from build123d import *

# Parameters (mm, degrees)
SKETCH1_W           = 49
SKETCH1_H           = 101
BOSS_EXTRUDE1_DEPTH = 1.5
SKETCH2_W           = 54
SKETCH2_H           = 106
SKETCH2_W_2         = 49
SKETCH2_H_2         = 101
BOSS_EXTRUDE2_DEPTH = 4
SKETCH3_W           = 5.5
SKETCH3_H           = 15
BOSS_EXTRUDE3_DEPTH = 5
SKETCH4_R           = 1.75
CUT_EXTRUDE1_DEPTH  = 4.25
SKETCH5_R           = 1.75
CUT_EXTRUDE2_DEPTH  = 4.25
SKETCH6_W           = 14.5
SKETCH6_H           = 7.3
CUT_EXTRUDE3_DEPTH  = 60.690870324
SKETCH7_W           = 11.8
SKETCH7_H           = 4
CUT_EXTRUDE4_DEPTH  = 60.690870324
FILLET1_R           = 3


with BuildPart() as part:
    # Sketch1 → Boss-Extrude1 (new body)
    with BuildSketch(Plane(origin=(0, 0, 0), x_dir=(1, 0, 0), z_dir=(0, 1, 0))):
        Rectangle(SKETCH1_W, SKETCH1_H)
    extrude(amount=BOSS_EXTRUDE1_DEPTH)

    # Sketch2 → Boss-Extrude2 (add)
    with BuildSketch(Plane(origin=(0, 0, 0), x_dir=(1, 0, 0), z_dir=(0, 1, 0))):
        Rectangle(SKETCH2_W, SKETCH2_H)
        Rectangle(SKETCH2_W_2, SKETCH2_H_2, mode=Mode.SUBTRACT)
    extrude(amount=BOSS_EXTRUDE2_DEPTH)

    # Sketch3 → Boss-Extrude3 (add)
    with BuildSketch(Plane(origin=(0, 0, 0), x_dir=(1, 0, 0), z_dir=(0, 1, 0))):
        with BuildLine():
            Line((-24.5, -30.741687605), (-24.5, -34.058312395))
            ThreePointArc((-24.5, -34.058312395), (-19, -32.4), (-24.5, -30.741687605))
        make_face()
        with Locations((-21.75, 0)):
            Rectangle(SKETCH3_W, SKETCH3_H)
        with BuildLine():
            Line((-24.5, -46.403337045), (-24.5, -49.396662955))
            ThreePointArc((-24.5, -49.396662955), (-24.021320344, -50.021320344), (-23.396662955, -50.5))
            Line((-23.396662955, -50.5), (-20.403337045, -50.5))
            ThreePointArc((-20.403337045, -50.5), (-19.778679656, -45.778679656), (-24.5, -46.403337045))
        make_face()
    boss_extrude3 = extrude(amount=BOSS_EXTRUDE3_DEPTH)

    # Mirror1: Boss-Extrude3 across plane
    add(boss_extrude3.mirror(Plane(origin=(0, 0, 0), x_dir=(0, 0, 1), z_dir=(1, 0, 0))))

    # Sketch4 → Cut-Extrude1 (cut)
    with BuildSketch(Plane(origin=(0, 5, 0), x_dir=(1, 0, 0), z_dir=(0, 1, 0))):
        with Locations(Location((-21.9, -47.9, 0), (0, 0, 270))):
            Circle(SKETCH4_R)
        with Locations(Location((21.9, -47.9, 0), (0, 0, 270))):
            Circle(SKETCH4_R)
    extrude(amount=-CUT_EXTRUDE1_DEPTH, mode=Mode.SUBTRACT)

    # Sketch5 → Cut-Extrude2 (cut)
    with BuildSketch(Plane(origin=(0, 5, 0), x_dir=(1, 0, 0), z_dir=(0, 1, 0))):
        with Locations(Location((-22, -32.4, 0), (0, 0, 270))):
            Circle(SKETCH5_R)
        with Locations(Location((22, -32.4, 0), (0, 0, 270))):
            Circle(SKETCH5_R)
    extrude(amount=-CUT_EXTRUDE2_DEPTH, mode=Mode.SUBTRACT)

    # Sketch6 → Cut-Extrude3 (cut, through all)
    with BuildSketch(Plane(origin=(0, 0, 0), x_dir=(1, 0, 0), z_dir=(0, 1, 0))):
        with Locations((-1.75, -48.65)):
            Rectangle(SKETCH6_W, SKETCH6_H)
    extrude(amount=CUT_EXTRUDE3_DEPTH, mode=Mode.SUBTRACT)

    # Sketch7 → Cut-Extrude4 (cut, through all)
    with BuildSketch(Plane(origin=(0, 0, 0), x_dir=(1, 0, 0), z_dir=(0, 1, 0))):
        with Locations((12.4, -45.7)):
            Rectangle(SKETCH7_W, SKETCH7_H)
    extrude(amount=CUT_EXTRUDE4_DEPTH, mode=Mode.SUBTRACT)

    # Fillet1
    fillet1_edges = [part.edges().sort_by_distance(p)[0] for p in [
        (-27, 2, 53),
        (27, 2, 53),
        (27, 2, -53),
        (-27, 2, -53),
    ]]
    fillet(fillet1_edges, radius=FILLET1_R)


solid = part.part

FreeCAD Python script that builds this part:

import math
import FreeCAD as App
import Part
import Sketcher
Q = App.Units.Quantity


def edges_at(feature, points):
    """Names of the edges that pass closest to the given points."""
    edges = feature.Shape.Edges
    near = lambda p: min(range(len(edges)), key=lambda i: edges[i].distToShape(Part.Vertex(*p))[0])
    return sorted({f"Edge{near(p) + 1}" for p in points})

doc = App.newDocument("Part")
body = doc.addObject("PartDesign::Body", "Body")

# Sketch on XZ plane
sketch1 = body.newObject("Sketcher::SketchObject", "Sketch")
sketch1.AttachmentSupport = (doc.getObject("XZ_Plane"), [""])
sketch1.MapMode = "FlatFace"
sketch1.addGeometry(Part.LineSegment(App.Vector(-24, -50, 0), App.Vector(-24, 50, 0)), False)
sketch1.addGeometry(Part.LineSegment(App.Vector(-24, 50, 0), App.Vector(24, 50, 0)), False)
sketch1.addGeometry(Part.LineSegment(App.Vector(24, 50, 0), App.Vector(24, -50, 0)), False)
sketch1.addGeometry(Part.LineSegment(App.Vector(24, -50, 0), App.Vector(-24, -50, 0)), False)
sketch1.addConstraint(Sketcher.Constraint("Coincident", 0, 2, 1, 1))
sketch1.addConstraint(Sketcher.Constraint("Coincident", 1, 2, 2, 1))
sketch1.addConstraint(Sketcher.Constraint("Coincident", 2, 2, 3, 1))
sketch1.addConstraint(Sketcher.Constraint("Coincident", 3, 2, 0, 1))
sketch1.addConstraint(Sketcher.Constraint("Vertical", 0))
sketch1.addConstraint(Sketcher.Constraint("Horizontal", 1))
sketch1.addConstraint(Sketcher.Constraint("Vertical", 2))
sketch1.addConstraint(Sketcher.Constraint("Horizontal", 3))
sketch1.addConstraint(Sketcher.Constraint("Symmetric", 0, 2, 2, 2, -1, 1))
sketch1.addConstraint(Sketcher.Constraint("DistanceX", 1, 1, 1, 2, Q("49 mm")))
sketch1.addConstraint(Sketcher.Constraint("DistanceY", 0, 1, 0, 2, Q("101 mm")))
pad1 = body.newObject("PartDesign::Pad", "Pad")
pad1.Profile = sketch1
pad1.Length = 1.5
pad1.Reversed = True

# Sketch on XZ plane
sketch2 = body.newObject("Sketcher::SketchObject", "Sketch001")
sketch2.AttachmentSupport = (doc.getObject("XZ_Plane"), [""])
sketch2.MapMode = "FlatFace"
sketch2.addGeometry(Part.LineSegment(App.Vector(-27, -53, 0), App.Vector(-27, 53, 0)), False)
sketch2.addGeometry(Part.LineSegment(App.Vector(-27, 53, 0), App.Vector(27, 53, 0)), False)
sketch2.addGeometry(Part.LineSegment(App.Vector(27, 53, 0), App.Vector(27, -53, 0)), False)
sketch2.addGeometry(Part.LineSegment(App.Vector(27, -53, 0), App.Vector(-27, -53, 0)), False)
sketch2.addGeometry(Part.LineSegment(App.Vector(24, 50, 0), App.Vector(-24, 50, 0)), False)
sketch2.addGeometry(Part.LineSegment(App.Vector(-24, 50, 0), App.Vector(-24, -50, 0)), False)
sketch2.addGeometry(Part.LineSegment(App.Vector(-24, -50, 0), App.Vector(24, -50, 0)), False)
sketch2.addGeometry(Part.LineSegment(App.Vector(24, -50, 0), App.Vector(24, 50, 0)), False)
sketch2.addConstraint(Sketcher.Constraint("Coincident", 0, 2, 1, 1))
sketch2.addConstraint(Sketcher.Constraint("Coincident", 1, 2, 2, 1))
sketch2.addConstraint(Sketcher.Constraint("Coincident", 2, 2, 3, 1))
sketch2.addConstraint(Sketcher.Constraint("Coincident", 3, 2, 0, 1))
sketch2.addConstraint(Sketcher.Constraint("Coincident", 4, 2, 5, 1))
sketch2.addConstraint(Sketcher.Constraint("Coincident", 5, 2, 6, 1))
sketch2.addConstraint(Sketcher.Constraint("Coincident", 6, 2, 7, 1))
sketch2.addConstraint(Sketcher.Constraint("Coincident", 7, 2, 4, 1))
sketch2.addConstraint(Sketcher.Constraint("Vertical", 0))
sketch2.addConstraint(Sketcher.Constraint("Horizontal", 1))
sketch2.addConstraint(Sketcher.Constraint("Vertical", 2))
sketch2.addConstraint(Sketcher.Constraint("Horizontal", 3))
sketch2.addConstraint(Sketcher.Constraint("Horizontal", 4))
sketch2.addConstraint(Sketcher.Constraint("Vertical", 5))
sketch2.addConstraint(Sketcher.Constraint("Horizontal", 6))
sketch2.addConstraint(Sketcher.Constraint("Vertical", 7))
sketch2.addConstraint(Sketcher.Constraint("Symmetric", 0, 2, 2, 2, -1, 1))
sketch2.addConstraint(Sketcher.Constraint("Symmetric", 4, 2, 6, 2, -1, 1))
sketch2.addConstraint(Sketcher.Constraint("DistanceX", 1, 1, 1, 2, Q("54 mm")))
sketch2.addConstraint(Sketcher.Constraint("DistanceX", 4, 2, 4, 1, Q("49 mm")))
sketch2.addConstraint(Sketcher.Constraint("DistanceY", 0, 1, 0, 2, Q("106 mm")))
sketch2.addConstraint(Sketcher.Constraint("DistanceY", 5, 2, 5, 1, Q("101 mm")))
pad2 = body.newObject("PartDesign::Pad", "Pad001")
pad2.Profile = sketch2
pad2.Length = 4
pad2.Reversed = True

# Sketch on XZ plane
sketch3 = body.newObject("Sketcher::SketchObject", "Sketch002")
sketch3.AttachmentSupport = (doc.getObject("XZ_Plane"), [""])
sketch3.MapMode = "FlatFace"
sketch3.addGeometry(Part.LineSegment(App.Vector(-24.5, 30.7, 0), App.Vector(-24.5, 34.1, 0)), False)
sketch3.addGeometry(Part.ArcOfCircle(Part.Circle(App.Vector(-22, 32.4, 0), App.Vector(0, 0, 1), 3), math.radians(-146), math.radians(146)), False)
sketch3.addGeometry(Part.LineSegment(App.Vector(-24.5, -7.5, 0), App.Vector(-24.5, 7.5, 0)), False)
sketch3.addGeometry(Part.LineSegment(App.Vector(-24.5, 7.5, 0), App.Vector(-19, 7.5, 0)), False)
sketch3.addGeometry(Part.LineSegment(App.Vector(-19, 7.5, 0), App.Vector(-19, -7.5, 0)), False)
sketch3.addGeometry(Part.LineSegment(App.Vector(-19, -7.5, 0), App.Vector(-24.5, -7.5, 0)), False)
sketch3.addGeometry(Part.LineSegment(App.Vector(-24.5, 46.4, 0), App.Vector(-24.5, 49.4, 0)), False)
sketch3.addGeometry(Part.ArcOfCircle(Part.Circle(App.Vector(-21.9, 47.9, 0), App.Vector(0, 0, 1), 3), math.radians(120), math.radians(150)), False)
sketch3.addGeometry(Part.LineSegment(App.Vector(-23.4, 50.5, 0), App.Vector(-20.4, 50.5, 0)), False)
sketch3.addGeometry(Part.ArcOfCircle(Part.Circle(App.Vector(-21.9, 47.9, 0), App.Vector(0, 0, 1), 3), math.radians(-150), math.radians(60)), False)
sketch3.addConstraint(Sketcher.Constraint("Coincident", 0, 1, 1, 1))
sketch3.addConstraint(Sketcher.Constraint("Coincident", 1, 2, 0, 2))
sketch3.addConstraint(Sketcher.Constraint("Coincident", 2, 2, 3, 1))
sketch3.addConstraint(Sketcher.Constraint("Coincident", 3, 2, 4, 1))
sketch3.addConstraint(Sketcher.Constraint("Coincident", 4, 2, 5, 1))
sketch3.addConstraint(Sketcher.Constraint("Coincident", 5, 2, 2, 1))
sketch3.addConstraint(Sketcher.Constraint("Coincident", 6, 2, 7, 2))
sketch3.addConstraint(Sketcher.Constraint("Coincident", 7, 1, 8, 1))
sketch3.addConstraint(Sketcher.Constraint("Coincident", 8, 2, 9, 2))
sketch3.addConstraint(Sketcher.Constraint("Coincident", 9, 1, 6, 1))
sketch3.addConstraint(Sketcher.Constraint("Vertical", 0))
sketch3.addConstraint(Sketcher.Constraint("Vertical", 2))
sketch3.addConstraint(Sketcher.Constraint("Horizontal", 3))
sketch3.addConstraint(Sketcher.Constraint("Vertical", 4))
sketch3.addConstraint(Sketcher.Constraint("Horizontal", 5))
sketch3.addConstraint(Sketcher.Constraint("Vertical", 6))
sketch3.addConstraint(Sketcher.Constraint("Horizontal", 8))
sketch3.addConstraint(Sketcher.Constraint("Coincident", 9, 3, 7, 3))
sketch3.addConstraint(Sketcher.Constraint("Equal", 1, 7))
sketch3.addConstraint(Sketcher.Constraint("Equal", 7, 9))
sketch3.addConstraint(Sketcher.Constraint("Vertical", 1, 2, 2, 2))
sketch3.addConstraint(Sketcher.Constraint("Vertical", 5, 2, 6, 2))
sketch3.addConstraint(Sketcher.Constraint("Equal", 8, 6))
sketch3.addConstraint(Sketcher.Constraint("Radius", 1, Q("3 mm")))
sketch3.addConstraint(Sketcher.Constraint("DistanceY", 2, 1, 2, 2, Q("15 mm")))
sketch3.addConstraint(Sketcher.Constraint("DistanceX", 3, 1, 3, 2, Q("5.5 mm")))
sketch3.addConstraint(Sketcher.Constraint("DistanceX", 1, 3, -1, 1, Q("22 mm")))
sketch3.addConstraint(Sketcher.Constraint("DistanceX", 3, 2, -1, 1, Q("19 mm")))
sketch3.addConstraint(Sketcher.Constraint("DistanceY", -1, 1, 1, 3, Q("32.4 mm")))
sketch3.addConstraint(Sketcher.Constraint("DistanceX", 7, 3, -1, 1, Q("21.9 mm")))
sketch3.addConstraint(Sketcher.Constraint("DistanceY", -1, 1, 7, 3, Q("47.9 mm")))
sketch3.addConstraint(Sketcher.Constraint("DistanceY", -1, 1, 2, 2, Q("7.5 mm")))
pad3 = body.newObject("PartDesign::Pad", "Pad002")
pad3.Profile = sketch3
pad3.Length = 5
pad3.Reversed = True
doc.recompute()

mirrored = body.newObject("PartDesign::Mirrored", "Mirrored")
mirrored.Originals = [pad3]
mirrored.MirrorPlane = (doc.getObject("YZ_Plane"), [""])
body.Tip = mirrored

# Sketch on XZ plane
sketch4 = body.newObject("Sketcher::SketchObject", "Sketch003")
sketch4.AttachmentSupport = (doc.getObject("XZ_Plane"), [""])
sketch4.MapMode = "FlatFace"
sketch4.AttachmentOffset = App.Placement(App.Vector(0, 0, -5), App.Rotation())
sketch4.addGeometry(Part.Circle(App.Vector(-21.9, 47.9, 0), App.Vector(0, 0, 1), 1.8), False)
sketch4.addGeometry(Part.Circle(App.Vector(21.9, 47.9, 0), App.Vector(0, 0, 1), 1.8), False)
sketch4.addConstraint(Sketcher.Constraint("Equal", 0, 1))
sketch4.addConstraint(Sketcher.Constraint("Symmetric", 0, 3, 1, 3, -2))
sketch4.addConstraint(Sketcher.Constraint("Diameter", 0, Q("3.5 mm")))
sketch4.addConstraint(Sketcher.Constraint("DistanceX", 0, 3, -1, 1, Q("21.9 mm")))
sketch4.addConstraint(Sketcher.Constraint("DistanceY", -1, 1, 0, 3, Q("47.9 mm")))
pocket1 = body.newObject("PartDesign::Pocket", "Pocket")
pocket1.Profile = sketch4
pocket1.Length = 4.25
pocket1.Reversed = True

# Sketch on XZ plane
sketch5 = body.newObject("Sketcher::SketchObject", "Sketch004")
sketch5.AttachmentSupport = (doc.getObject("XZ_Plane"), [""])
sketch5.MapMode = "FlatFace"
sketch5.AttachmentOffset = App.Placement(App.Vector(0, 0, -5), App.Rotation())
sketch5.addGeometry(Part.Circle(App.Vector(-22, 32.4, 0), App.Vector(0, 0, 1), 1.8), False)
sketch5.addGeometry(Part.Circle(App.Vector(22, 32.4, 0), App.Vector(0, 0, 1), 1.8), False)
sketch5.addConstraint(Sketcher.Constraint("Equal", 0, 1))
sketch5.addConstraint(Sketcher.Constraint("Symmetric", 0, 3, 1, 3, -2))
sketch5.addConstraint(Sketcher.Constraint("Diameter", 0, Q("3.5 mm")))
sketch5.addConstraint(Sketcher.Constraint("DistanceX", 0, 3, -1, 1, Q("22 mm")))
sketch5.addConstraint(Sketcher.Constraint("DistanceY", -1, 1, 0, 3, Q("32.4 mm")))
pocket2 = body.newObject("PartDesign::Pocket", "Pocket001")
pocket2.Profile = sketch5
pocket2.Length = 4.25
pocket2.Reversed = True

# Sketch on XZ plane
sketch6 = body.newObject("Sketcher::SketchObject", "Sketch005")
sketch6.AttachmentSupport = (doc.getObject("XZ_Plane"), [""])
sketch6.MapMode = "FlatFace"
sketch6.addGeometry(Part.LineSegment(App.Vector(-9, 45, 0), App.Vector(-9, 52, 0)), False)
sketch6.addGeometry(Part.LineSegment(App.Vector(-9, 52, 0), App.Vector(6, 52, 0)), False)
sketch6.addGeometry(Part.LineSegment(App.Vector(6, 52, 0), App.Vector(6, 45, 0)), False)
sketch6.addGeometry(Part.LineSegment(App.Vector(6, 45, 0), App.Vector(-9, 45, 0)), False)
sketch6.addConstraint(Sketcher.Constraint("Coincident", 0, 2, 1, 1))
sketch6.addConstraint(Sketcher.Constraint("Coincident", 1, 2, 2, 1))
sketch6.addConstraint(Sketcher.Constraint("Coincident", 2, 2, 3, 1))
sketch6.addConstraint(Sketcher.Constraint("Coincident", 3, 2, 0, 1))
sketch6.addConstraint(Sketcher.Constraint("Vertical", 0))
sketch6.addConstraint(Sketcher.Constraint("Horizontal", 1))
sketch6.addConstraint(Sketcher.Constraint("Vertical", 2))
sketch6.addConstraint(Sketcher.Constraint("Horizontal", 3))
sketch6.addConstraint(Sketcher.Constraint("DistanceX", 1, 1, 1, 2, Q("14.5 mm")))
sketch6.addConstraint(Sketcher.Constraint("DistanceY", 0, 1, 0, 2, Q("7.3 mm")))
sketch6.addConstraint(Sketcher.Constraint("DistanceX", 0, 2, -1, 1, Q("9 mm")))
sketch6.addConstraint(Sketcher.Constraint("DistanceY", -1, 1, 2, 2, Q("45 mm")))
pocket3 = body.newObject("PartDesign::Pocket", "Pocket002")
pocket3.Profile = sketch6
pocket3.Type = "ThroughAll"

# Sketch on XZ plane
sketch7 = body.newObject("Sketcher::SketchObject", "Sketch006")
sketch7.AttachmentSupport = (doc.getObject("XZ_Plane"), [""])
sketch7.MapMode = "FlatFace"
sketch7.addGeometry(Part.LineSegment(App.Vector(6.5, 43.7, 0), App.Vector(6.5, 47.7, 0)), False)
sketch7.addGeometry(Part.LineSegment(App.Vector(6.5, 47.7, 0), App.Vector(18.3, 47.7, 0)), False)
sketch7.addGeometry(Part.LineSegment(App.Vector(18.3, 47.7, 0), App.Vector(18.3, 43.7, 0)), False)
sketch7.addGeometry(Part.LineSegment(App.Vector(18.3, 43.7, 0), App.Vector(6.5, 43.7, 0)), False)
sketch7.addConstraint(Sketcher.Constraint("Coincident", 0, 2, 1, 1))
sketch7.addConstraint(Sketcher.Constraint("Coincident", 1, 2, 2, 1))
sketch7.addConstraint(Sketcher.Constraint("Coincident", 2, 2, 3, 1))
sketch7.addConstraint(Sketcher.Constraint("Coincident", 3, 2, 0, 1))
sketch7.addConstraint(Sketcher.Constraint("Vertical", 0))
sketch7.addConstraint(Sketcher.Constraint("Horizontal", 1))
sketch7.addConstraint(Sketcher.Constraint("Vertical", 2))
sketch7.addConstraint(Sketcher.Constraint("Horizontal", 3))
sketch7.addConstraint(Sketcher.Constraint("DistanceY", 0, 1, 0, 2, Q("4 mm")))
sketch7.addConstraint(Sketcher.Constraint("DistanceX", 1, 1, 1, 2, Q("11.8 mm")))
sketch7.addConstraint(Sketcher.Constraint("DistanceX", -1, 1, 0, 2, Q("6.5 mm")))
sketch7.addConstraint(Sketcher.Constraint("DistanceY", -1, 1, 0, 2, Q("47.7 mm")))
pocket4 = body.newObject("PartDesign::Pocket", "Pocket003")
pocket4.Profile = sketch7
pocket4.Type = "ThroughAll"
doc.recompute()

fillet = body.newObject("PartDesign::Fillet", "Fillet")
fillet.Base = (pocket4, edges_at(pocket4, [
    (-27, 2, 53),
    (27, 2, 53),
    (27, 2, -53),
    (-27, 2, -53),
]))
fillet.Radius = 3

doc.recompute()
